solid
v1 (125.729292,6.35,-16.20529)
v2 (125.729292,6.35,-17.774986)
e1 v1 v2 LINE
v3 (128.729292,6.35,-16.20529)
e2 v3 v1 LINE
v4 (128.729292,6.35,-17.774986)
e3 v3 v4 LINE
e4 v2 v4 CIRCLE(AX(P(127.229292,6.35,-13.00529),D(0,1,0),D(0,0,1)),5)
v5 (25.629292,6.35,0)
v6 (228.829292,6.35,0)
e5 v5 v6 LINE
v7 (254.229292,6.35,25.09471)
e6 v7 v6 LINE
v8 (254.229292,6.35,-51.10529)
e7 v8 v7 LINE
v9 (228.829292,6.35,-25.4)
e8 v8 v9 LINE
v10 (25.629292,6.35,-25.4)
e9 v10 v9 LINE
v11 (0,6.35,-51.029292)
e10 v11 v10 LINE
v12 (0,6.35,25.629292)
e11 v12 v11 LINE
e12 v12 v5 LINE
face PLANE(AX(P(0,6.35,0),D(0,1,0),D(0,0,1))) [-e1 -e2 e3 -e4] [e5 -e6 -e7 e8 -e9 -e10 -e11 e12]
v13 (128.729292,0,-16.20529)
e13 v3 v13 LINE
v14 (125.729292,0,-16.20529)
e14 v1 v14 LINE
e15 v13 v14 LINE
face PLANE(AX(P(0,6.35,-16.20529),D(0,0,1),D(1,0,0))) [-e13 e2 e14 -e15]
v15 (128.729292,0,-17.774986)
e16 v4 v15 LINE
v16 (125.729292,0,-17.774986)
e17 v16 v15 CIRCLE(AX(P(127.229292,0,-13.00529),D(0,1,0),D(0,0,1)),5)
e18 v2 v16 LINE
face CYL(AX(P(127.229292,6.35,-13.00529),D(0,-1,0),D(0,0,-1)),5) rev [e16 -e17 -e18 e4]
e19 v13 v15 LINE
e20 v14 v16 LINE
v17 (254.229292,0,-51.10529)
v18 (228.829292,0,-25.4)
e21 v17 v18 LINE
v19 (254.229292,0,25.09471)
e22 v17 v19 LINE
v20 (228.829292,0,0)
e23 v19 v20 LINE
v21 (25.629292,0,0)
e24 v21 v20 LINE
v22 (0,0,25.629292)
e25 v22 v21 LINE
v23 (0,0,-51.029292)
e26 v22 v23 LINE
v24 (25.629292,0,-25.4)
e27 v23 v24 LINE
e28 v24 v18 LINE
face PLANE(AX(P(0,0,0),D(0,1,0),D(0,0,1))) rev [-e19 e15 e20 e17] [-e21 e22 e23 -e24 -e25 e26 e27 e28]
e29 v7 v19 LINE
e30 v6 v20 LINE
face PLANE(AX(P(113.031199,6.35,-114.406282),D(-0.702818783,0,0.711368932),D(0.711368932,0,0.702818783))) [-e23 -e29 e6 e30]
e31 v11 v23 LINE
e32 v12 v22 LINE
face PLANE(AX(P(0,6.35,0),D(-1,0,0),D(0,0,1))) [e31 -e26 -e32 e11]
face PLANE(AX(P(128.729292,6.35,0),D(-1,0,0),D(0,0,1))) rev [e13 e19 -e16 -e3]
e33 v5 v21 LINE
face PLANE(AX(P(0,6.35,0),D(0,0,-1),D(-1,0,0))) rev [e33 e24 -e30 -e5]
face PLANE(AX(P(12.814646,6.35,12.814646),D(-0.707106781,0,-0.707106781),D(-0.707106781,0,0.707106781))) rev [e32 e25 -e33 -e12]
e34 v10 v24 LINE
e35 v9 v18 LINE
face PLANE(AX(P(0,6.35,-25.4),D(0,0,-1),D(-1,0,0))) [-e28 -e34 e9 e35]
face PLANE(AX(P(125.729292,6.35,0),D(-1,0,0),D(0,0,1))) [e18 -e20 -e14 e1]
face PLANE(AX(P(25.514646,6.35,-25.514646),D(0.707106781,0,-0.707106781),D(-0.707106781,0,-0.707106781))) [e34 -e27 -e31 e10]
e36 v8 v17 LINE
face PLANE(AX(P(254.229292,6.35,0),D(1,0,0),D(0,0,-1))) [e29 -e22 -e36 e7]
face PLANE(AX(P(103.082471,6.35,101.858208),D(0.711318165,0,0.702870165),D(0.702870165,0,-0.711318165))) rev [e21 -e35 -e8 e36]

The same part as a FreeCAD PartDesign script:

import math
import FreeCAD as App
import Part
import Sketcher
from FreeCAD import Vector
Q = App.Units.Quantity


def add_polygon(sketch, points):
    """Adds a closed chain of lines whose ends are joined by coincident constraints."""
    first, n = sketch.GeometryCount, len(points)
    for a, b in zip(points, points[1:] + points[:1]):
        sketch.addGeometry(Part.LineSegment(App.Vector(*a, 0), App.Vector(*b, 0)), False)
    for i in range(n):
        sketch.addConstraint(Sketcher.Constraint("Coincident", first + i, 2, first + (i + 1) % n, 1))

doc = App.newDocument("Part")
params = doc.addObject("Spreadsheet::Sheet", "Params")
for row, (alias, value) in enumerate([
    ("sketch1_width", "8 in"),
    ("sketch1_height", "3 in"),
    ("pad1_length", "0.25 in"),
], start=1):
    params.set(f"A{row}", alias)
    params.set(f"B{row}", "=" + value)
    params.setAlias(f"B{row}", alias)

body = doc.addObject("PartDesign::Body", "Body")

# Sketch on XZ plane
sketch1 = body.newObject("Sketcher::SketchObject", "Sketch")
sketch1.AttachmentSupport = (doc.getObject("XZ_Plane"), [""])
sketch1.MapMode = "FlatFace"
add_polygon(sketch1, [(0, -51.029292), (0, 25.629292), (25.629292, 0), (228.829292, 0), (254.229292, 25.09471), (254.229292, -51.10529), (228.829292, -25.4), (25.629292, -25.4)])  # lines 0-7
sketch1.addGeometry(Part.ArcOfCircle(Part.Circle(Vector(127.229292, -13.00529, 0), Vector(0, 0, 1), 5), math.radians(-72.542397), math.radians(252.542397)), False)  # 8
sketch1.addGeometry(Part.LineSegment(Vector(125.729292, -17.774986, 0), Vector(125.729292, -16.20529, 0)), False)  # 9
sketch1.addGeometry(Part.LineSegment(Vector(125.729292, -16.20529, 0), Vector(128.729292, -16.20529, 0)), False)  # 10
sketch1.addGeometry(Part.LineSegment(Vector(128.729292, -16.20529, 0), Vector(128.729292, -17.774986, 0)), False)  # 11
sketch1.addConstraint([
    Sketcher.Constraint("Coincident", 8, 2, 9, 1),
    Sketcher.Constraint("Coincident", 9, 2, 10, 1),
    Sketcher.Constraint("Coincident", 10, 2, 11, 1),
    Sketcher.Constraint("Coincident", 11, 2, 8, 1),
    Sketcher.Constraint("Vertical", 0),
    Sketcher.Constraint("Horizontal", 2),
    Sketcher.Constraint("Vertical", 4),
    Sketcher.Constraint("Horizontal", 6),
    Sketcher.Constraint("Vertical", 9),
    Sketcher.Constraint("Horizontal", 10),
    Sketcher.Constraint("Vertical", 11),
    Sketcher.Constraint("PointOnObject", 0, 2, -2),
    Sketcher.Constraint("PointOnObject", 1, 2, -1),
    Sketcher.Constraint("Perpendicular", 1, 7),
    Sketcher.Constraint("Horizontal", 8, 2, 11, 2),
    Sketcher.Constraint("Vertical", 2, 2, 5, 2),
    Sketcher.Constraint("Vertical", 1, 2, 6, 2),
    Sketcher.Constraint("Equal", 1, 7),
    Sketcher.Constraint("DistanceX", 2, 1, 2, 2, Q("8 in")),
    Sketcher.Constraint("DistanceY", 4, 2, 4, 1, Q("3 in")),
    Sketcher.Constraint("DistanceY", 5, 2, -1, 1, Q("1 in")),
    Sketcher.Constraint("DistanceX", 1, 2, 8, 3, Q("4 in")),
    Sketcher.Constraint("DistanceX", 2, 2, 3, 2, Q("1 in")),
    Sketcher.Constraint("DistanceY", 8, 3, 3, 2, Q("1.5 in")),
    Sketcher.Constraint("Radius", 8, 5.0),
    Sketcher.Constraint("DistanceX", 10, 1, 10, 2, 3.0),
    Sketcher.Constraint("DistanceY", 7, 2, 8, 3, 38.024002),
    Sketcher.Constraint("DistanceY", 9, 2, 8, 3, 3.2),
    Sketcher.Constraint("Distance", 1, 36.245292),
])
sketch1.setExpression("Constraints[26]", "Params.sketch1_width")
sketch1.setExpression("Constraints[27]", "Params.sketch1_height")
pad1 = body.newObject("PartDesign::Pad", "Pad")
pad1.Profile = sketch1
pad1.setExpression("Length", "Params.pad1_length")
pad1.Reversed = True

doc.recompute()
